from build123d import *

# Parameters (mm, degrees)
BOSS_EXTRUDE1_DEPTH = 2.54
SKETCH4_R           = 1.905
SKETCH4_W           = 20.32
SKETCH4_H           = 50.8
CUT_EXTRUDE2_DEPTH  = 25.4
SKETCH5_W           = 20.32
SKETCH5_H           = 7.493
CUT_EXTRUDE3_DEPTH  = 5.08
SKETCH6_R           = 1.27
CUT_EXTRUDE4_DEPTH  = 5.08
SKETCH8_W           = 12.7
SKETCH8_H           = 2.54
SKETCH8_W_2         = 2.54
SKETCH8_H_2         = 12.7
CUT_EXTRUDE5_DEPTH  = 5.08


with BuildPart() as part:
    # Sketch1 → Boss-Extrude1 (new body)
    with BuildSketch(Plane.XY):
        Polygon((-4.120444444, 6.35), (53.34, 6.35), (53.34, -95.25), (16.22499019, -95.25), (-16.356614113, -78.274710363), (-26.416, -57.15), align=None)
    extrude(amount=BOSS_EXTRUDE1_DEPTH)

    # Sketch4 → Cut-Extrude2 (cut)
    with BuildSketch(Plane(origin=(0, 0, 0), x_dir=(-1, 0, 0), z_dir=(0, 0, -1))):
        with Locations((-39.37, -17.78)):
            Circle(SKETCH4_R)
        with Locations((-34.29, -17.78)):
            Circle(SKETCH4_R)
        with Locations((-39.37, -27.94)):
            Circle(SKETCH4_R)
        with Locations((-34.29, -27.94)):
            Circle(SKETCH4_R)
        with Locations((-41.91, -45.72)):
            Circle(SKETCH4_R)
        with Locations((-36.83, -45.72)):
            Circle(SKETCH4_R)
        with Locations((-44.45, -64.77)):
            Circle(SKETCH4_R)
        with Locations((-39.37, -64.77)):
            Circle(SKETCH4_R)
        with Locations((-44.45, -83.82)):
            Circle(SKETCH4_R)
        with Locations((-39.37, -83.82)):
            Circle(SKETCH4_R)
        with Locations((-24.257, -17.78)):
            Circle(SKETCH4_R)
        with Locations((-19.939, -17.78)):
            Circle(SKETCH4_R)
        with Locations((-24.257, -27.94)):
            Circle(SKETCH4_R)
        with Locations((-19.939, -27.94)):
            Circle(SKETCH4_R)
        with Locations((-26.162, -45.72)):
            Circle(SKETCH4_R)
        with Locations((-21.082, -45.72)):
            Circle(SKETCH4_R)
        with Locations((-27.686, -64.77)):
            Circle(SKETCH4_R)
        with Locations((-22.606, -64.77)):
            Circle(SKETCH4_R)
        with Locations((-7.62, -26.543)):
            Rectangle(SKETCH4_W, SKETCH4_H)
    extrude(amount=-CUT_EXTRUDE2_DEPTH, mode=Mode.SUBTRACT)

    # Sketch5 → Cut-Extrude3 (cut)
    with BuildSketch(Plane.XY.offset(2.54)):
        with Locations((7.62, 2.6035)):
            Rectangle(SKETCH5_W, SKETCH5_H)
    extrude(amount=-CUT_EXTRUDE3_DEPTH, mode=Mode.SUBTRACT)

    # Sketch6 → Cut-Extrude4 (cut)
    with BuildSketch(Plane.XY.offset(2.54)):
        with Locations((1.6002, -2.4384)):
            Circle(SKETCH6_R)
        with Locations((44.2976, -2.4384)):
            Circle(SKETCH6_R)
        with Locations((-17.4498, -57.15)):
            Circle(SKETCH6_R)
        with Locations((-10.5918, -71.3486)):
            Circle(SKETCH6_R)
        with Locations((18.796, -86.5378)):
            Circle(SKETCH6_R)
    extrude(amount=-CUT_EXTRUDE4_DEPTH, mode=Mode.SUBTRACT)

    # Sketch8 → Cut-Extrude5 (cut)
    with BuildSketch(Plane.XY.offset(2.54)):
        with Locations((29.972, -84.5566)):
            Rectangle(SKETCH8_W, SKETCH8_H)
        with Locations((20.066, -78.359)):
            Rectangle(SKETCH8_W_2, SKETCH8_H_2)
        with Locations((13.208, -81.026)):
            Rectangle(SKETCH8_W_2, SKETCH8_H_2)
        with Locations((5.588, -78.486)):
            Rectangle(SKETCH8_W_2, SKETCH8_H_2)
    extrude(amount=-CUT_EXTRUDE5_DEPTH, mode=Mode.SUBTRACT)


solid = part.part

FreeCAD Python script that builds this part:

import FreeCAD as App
import Part
import Sketcher
Q = App.Units.Quantity


def add_polygon(sketch, points):
    """Adds a closed chain of lines whose ends are joined by coincident constraints."""
    first, n = sketch.GeometryCount, len(points)
    for a, b in zip(points, points[1:] + points[:1]):
        sketch.addGeometry(Part.LineSegment(App.Vector(*a, 0), App.Vector(*b, 0)), False)
    for i in range(n):
        sketch.addConstraint(Sketcher.Constraint("Coincident", first + i, 2, first + (i + 1) % n, 1))

doc = App.newDocument("Part")
body = doc.addObject("PartDesign::Body", "Body")

sketch1 = body.newObject("Sketcher::SketchObject", "Sketch")
sketch1.AttachmentSupport = (doc.getObject("XY_Plane"), [""])
sketch1.MapMode = "FlatFace"
add_polygon(sketch1, [(53.34, 6.35), (-4.120444, 6.35), (-26.416, -57.15), (-16.356614, -78.27471), (16.22499, -95.25), (53.34, -95.25)])
sketch1.addConstraint(Sketcher.Constraint("Horizontal", 0))
sketch1.addConstraint(Sketcher.Constraint("Horizontal", 4))
sketch1.addConstraint(Sketcher.Constraint("Vertical", 5))
sketch1.addConstraint(Sketcher.Constraint("DistanceY", 5, 1, 5, 2, Q("4 in")))
sketch1.addConstraint(Sketcher.Constraint("DistanceX", -1, 1, 4, 2, Q("2.1 in")))
sketch1.addConstraint(Sketcher.Constraint("DistanceY", 1, 2, 0, 2, Q("2.5 in")))
sketch1.addConstraint(Sketcher.Constraint("DistanceY", -1, 1, 0, 2, Q("0.25 in")))
sketch1.addConstraint(Sketcher.Constraint("DistanceX", 1, 2, -1, 1, Q("1.04 in")))
sketch1.addConstraint(Sketcher.Constraint("DistanceX", 4, 1, 4, 2, Q("37.11501 mm")))
sketch1.addConstraint(Sketcher.Constraint("DistanceX", 0, 2, 0, 1, Q("57.460444 mm")))
sketch1.addConstraint(Sketcher.Constraint("DistanceY", 2, 2, -1, 1, Q("78.27471 mm")))
sketch1.addConstraint(Sketcher.Constraint("DistanceX", 2, 2, 0, 2, Q("12.23617 mm")))
pad1 = body.newObject("PartDesign::Pad", "Pad")
pad1.Profile = sketch1
pad1.Length = Q("0.1 in")

sketch2 = body.newObject("Sketcher::SketchObject", "Sketch001")
sketch2.AttachmentSupport = (doc.getObject("XY_Plane"), [""])
sketch2.MapMode = "FlatFace"
sketch2.addGeometry(Part.Circle(App.Vector(39.37, -17.78, 0), App.Vector(0, 0, 1), 1.905), False)
sketch2.addGeometry(Part.Circle(App.Vector(34.29, -17.78, 0), App.Vector(0, 0, 1), 1.905), False)
sketch2.addGeometry(Part.Circle(App.Vector(39.37, -27.94, 0), App.Vector(0, 0, 1), 1.905), False)
sketch2.addGeometry(Part.Circle(App.Vector(34.29, -27.94, 0), App.Vector(0, 0, 1), 1.905), False)
sketch2.addGeometry(Part.Circle(App.Vector(41.91, -45.72, 0), App.Vector(0, 0, 1), 1.905), False)
sketch2.addGeometry(Part.Circle(App.Vector(36.83, -45.72, 0), App.Vector(0, 0, 1), 1.905), False)
sketch2.addGeometry(Part.Circle(App.Vector(44.45, -64.77, 0), App.Vector(0, 0, 1), 1.905), False)
sketch2.addGeometry(Part.Circle(App.Vector(39.37, -64.77, 0), App.Vector(0, 0, 1), 1.905), False)
sketch2.addGeometry(Part.Circle(App.Vector(44.45, -83.82, 0), App.Vector(0, 0, 1), 1.905), False)
sketch2.addGeometry(Part.Circle(App.Vector(39.37, -83.82, 0), App.Vector(0, 0, 1), 1.905), False)
sketch2.addGeometry(Part.Circle(App.Vector(24.257, -17.78, 0), App.Vector(0, 0, 1), 1.905), False)
sketch2.addGeometry(Part.Circle(App.Vector(19.939, -17.78, 0), App.Vector(0, 0, 1), 1.905), False)
sketch2.addGeometry(Part.Circle(App.Vector(24.257, -27.94, 0), App.Vector(0, 0, 1), 1.905), False)
sketch2.addGeometry(Part.Circle(App.Vector(19.939, -27.94, 0), App.Vector(0, 0, 1), 1.905), False)
sketch2.addGeometry(Part.Circle(App.Vector(26.162, -45.72, 0), App.Vector(0, 0, 1), 1.905), False)
sketch2.addGeometry(Part.Circle(App.Vector(21.082, -45.72, 0), App.Vector(0, 0, 1), 1.905), False)
sketch2.addGeometry(Part.Circle(App.Vector(27.686, -64.77, 0), App.Vector(0, 0, 1), 1.905), False)
sketch2.addGeometry(Part.Circle(App.Vector(22.606, -64.77, 0), App.Vector(0, 0, 1), 1.905), False)
add_polygon(sketch2, [(17.78, -1.143), (17.78, -51.943), (-2.54, -51.943), (-2.54, -1.143)])
sketch2.addConstraint(Sketcher.Constraint("Vertical", 18))
sketch2.addConstraint(Sketcher.Constraint("Horizontal", 19))
sketch2.addConstraint(Sketcher.Constraint("Vertical", 20))
sketch2.addConstraint(Sketcher.Constraint("Horizontal", 21))
sketch2.addConstraint(Sketcher.Constraint("Equal", 0, 1))
sketch2.addConstraint(Sketcher.Constraint("Equal", 1, 2))
sketch2.addConstraint(Sketcher.Constraint("Equal", 2, 3))
sketch2.addConstraint(Sketcher.Constraint("Equal", 3, 4))
sketch2.addConstraint(Sketcher.Constraint("Equal", 4, 5))
sketch2.addConstraint(Sketcher.Constraint("Equal", 5, 6))
sketch2.addConstraint(Sketcher.Constraint("Equal", 6, 7))
sketch2.addConstraint(Sketcher.Constraint("Equal", 7, 8))
sketch2.addConstraint(Sketcher.Constraint("Equal", 8, 9))
sketch2.addConstraint(Sketcher.Constraint("Equal", 9, 10))
sketch2.addConstraint(Sketcher.Constraint("Equal", 10, 11))
sketch2.addConstraint(Sketcher.Constraint("Equal", 11, 12))
sketch2.addConstraint(Sketcher.Constraint("Equal", 12, 13))
sketch2.addConstraint(Sketcher.Constraint("Equal", 13, 14))
sketch2.addConstraint(Sketcher.Constraint("Equal", 14, 15))
sketch2.addConstraint(Sketcher.Constraint("Equal", 15, 16))
sketch2.addConstraint(Sketcher.Constraint("Equal", 16, 17))
sketch2.addConstraint(Sketcher.Constraint("Horizontal", 0, 3, 1, 3))
sketch2.addConstraint(Sketcher.Constraint("Horizontal", 2, 3, 3, 3))
sketch2.addConstraint(Sketcher.Constraint("Horizontal", 4, 3, 5, 3))
sketch2.addConstraint(Sketcher.Constraint("Horizontal", 6, 3, 7, 3))
sketch2.addConstraint(Sketcher.Constraint("Horizontal", 8, 3, 9, 3))
sketch2.addConstraint(Sketcher.Constraint("Horizontal", 1, 3, 10, 3))
sketch2.addConstraint(Sketcher.Constraint("Horizontal", 10, 3, 11, 3))
sketch2.addConstraint(Sketcher.Constraint("Horizontal", 3, 3, 12, 3))
sketch2.addConstraint(Sketcher.Constraint("Horizontal", 12, 3, 13, 3))
sketch2.addConstraint(Sketcher.Constraint("Horizontal", 5, 3, 14, 3))
sketch2.addConstraint(Sketcher.Constraint("Horizontal", 14, 3, 15, 3))
sketch2.addConstraint(Sketcher.Constraint("Horizontal", 7, 3, 16, 3))
sketch2.addConstraint(Sketcher.Constraint("Horizontal", 16, 3, 17, 3))
sketch2.addConstraint(Sketcher.Constraint("Vertical", 0, 3, 2, 3))
sketch2.addConstraint(Sketcher.Constraint("Vertical", 1, 3, 3, 3))
sketch2.addConstraint(Sketcher.Constraint("Vertical", 2, 3, 7, 3))
sketch2.addConstraint(Sketcher.Constraint("Vertical", 6, 3, 8, 3))
sketch2.addConstraint(Sketcher.Constraint("Vertical", 7, 3, 9, 3))
sketch2.addConstraint(Sketcher.Constraint("Vertical", 10, 3, 12, 3))
sketch2.addConstraint(Sketcher.Constraint("Vertical", 11, 3, 13, 3))
sketch2.addConstraint(Sketcher.Constraint("Diameter", 0, Q("0.15 in")))
sketch2.addConstraint(Sketcher.Constraint("DistanceY", 18, 2, 18, 1, Q("2 in")))
sketch2.addConstraint(Sketcher.Constraint("DistanceX", 19, 2, 19, 1, Q("0.8 in")))
sketch2.addConstraint(Sketcher.Constraint("DistanceY", 0, 3, -1, 1, Q("0.7 in")))
sketch2.addConstraint(Sketcher.Constraint("DistanceY", 2, 3, -1, 1, Q("1.1 in")))
sketch2.addConstraint(Sketcher.Constraint("DistanceY", 4, 3, -1, 1, Q("1.8 in")))
sketch2.addConstraint(Sketcher.Constraint("DistanceY", 8, 3, -1, 1, Q("3.3 in")))
sketch2.addConstraint(Sketcher.Constraint("DistanceX", -1, 1, 18, 2, Q("0.7 in")))
sketch2.addConstraint(Sketcher.Constraint("DistanceX", 1, 3, 0, 3, Q("0.2 in")))
sketch2.addConstraint(Sketcher.Constraint("DistanceX", 2, 3, 4, 3, Q("0.1 in")))
sketch2.addConstraint(Sketcher.Constraint("DistanceX", 5, 3, 4, 3, Q("0.2 in")))
sketch2.addConstraint(Sketcher.Constraint("DistanceX", 4, 3, 6, 3, Q("0.1 in")))
sketch2.addConstraint(Sketcher.Constraint("DistanceX", 15, 3, 14, 3, Q("0.2 in")))
sketch2.addConstraint(Sketcher.Constraint("DistanceX", 17, 3, 16, 3, Q("0.2 in")))
sketch2.addConstraint(Sketcher.Constraint("DistanceX", -1, 1, 0, 3, Q("1.55 in")))
sketch2.addConstraint(Sketcher.Constraint("DistanceY", 6, 3, -1, 1, Q("2.55 in")))
sketch2.addConstraint(Sketcher.Constraint("DistanceX", -1, 1, 14, 3, Q("1.03 in")))
sketch2.addConstraint(Sketcher.Constraint("DistanceX", -1, 1, 16, 3, Q("1.09 in")))
sketch2.addConstraint(Sketcher.Constraint("DistanceX", 11, 3, 10, 3, Q("0.17 in")))
sketch2.addConstraint(Sketcher.Constraint("DistanceX", -1, 1, 10, 3, Q("0.955 in")))
sketch2.addConstraint(Sketcher.Constraint("DistanceY", 18, 2, -1, 1, Q("2.045 in")))
pocket1 = body.newObject("PartDesign::Pocket", "Pocket")
pocket1.Profile = sketch2
pocket1.Length = Q("1 in")
pocket1.Reversed = True

sketch3 = body.newObject("Sketcher::SketchObject", "Sketch002")
sketch3.AttachmentSupport = (doc.getObject("XY_Plane"), [""])
sketch3.MapMode = "FlatFace"
sketch3.AttachmentOffset = App.Placement(App.Vector(0, 0, 0.1 * 25.4), App.Rotation())
add_polygon(sketch3, [(-2.54, 6.35), (-2.54, -1.143), (17.78, -1.143), (17.78, 6.35)])
sketch3.addConstraint(Sketcher.Constraint("Vertical", 0))
sketch3.addConstraint(Sketcher.Constraint("Horizontal", 1))
sketch3.addConstraint(Sketcher.Constraint("Vertical", 2))
sketch3.addConstraint(Sketcher.Constraint("Horizontal", 3))
sketch3.addConstraint(Sketcher.Constraint("DistanceX", 1, 1, 1, 2, Q("0.8 in")))
sketch3.addConstraint(Sketcher.Constraint("DistanceX", 0, 2, -1, 1, Q("0.1 in")))
sketch3.addConstraint(Sketcher.Constraint("DistanceY", 0, 2, 0, 1, Q("0.295 in")))
sketch3.addConstraint(Sketcher.Constraint("DistanceY", -1, 1, 2, 2, Q("0.25 in")))
pocket2 = body.newObject("PartDesign::Pocket", "Pocket001")
pocket2.Profile = sketch3
pocket2.Length = Q("0.2 in")

sketch4 = body.newObject("Sketcher::SketchObject", "Sketch003")
sketch4.AttachmentSupport = (doc.getObject("XY_Plane"), [""])
sketch4.MapMode = "FlatFace"
sketch4.AttachmentOffset = App.Placement(App.Vector(0, 0, 0.1 * 25.4), App.Rotation())
sketch4.addGeometry(Part.Circle(App.Vector(1.6002, -2.4384, 0), App.Vector(0, 0, 1), 1.27), False)
sketch4.addGeometry(Part.Circle(App.Vector(44.2976, -2.4384, 0), App.Vector(0, 0, 1), 1.27), False)
sketch4.addGeometry(Part.Circle(App.Vector(-17.4498, -57.15, 0), App.Vector(0, 0, 1), 1.27), False)
sketch4.addGeometry(Part.Circle(App.Vector(-10.5918, -71.3486, 0), App.Vector(0, 0, 1), 1.27), False)
sketch4.addGeometry(Part.Circle(App.Vector(18.796, -86.5378, 0), App.Vector(0, 0, 1), 1.27), False)
sketch4.addConstraint(Sketcher.Constraint("Equal", 0, 1))
sketch4.addConstraint(Sketcher.Constraint("Equal", 1, 2))
sketch4.addConstraint(Sketcher.Constraint("Equal", 2, 3))
sketch4.addConstraint(Sketcher.Constraint("Equal", 3, 4))
sketch4.addConstraint(Sketcher.Constraint("Horizontal", 0, 3, 1, 3))
sketch4.addConstraint(Sketcher.Constraint("Diameter", 0, Q("0.1 in")))
sketch4.addConstraint(Sketcher.Constraint("DistanceY", 2, 3, -1, 1, Q("2.25 in")))
sketch4.addConstraint(Sketcher.Constraint("DistanceX", -1, 1, 4, 3, Q("0.74 in")))
sketch4.addConstraint(Sketcher.Constraint("DistanceX", 2, 3, 0, 3, Q("0.75 in")))
sketch4.addConstraint(Sketcher.Constraint("DistanceX", 2, 3, 3, 3, Q("0.27 in")))
sketch4.addConstraint(Sketcher.Constraint("DistanceX", -1, 1, 0, 3, Q("0.063 in")))
sketch4.addConstraint(Sketcher.Constraint("DistanceY", 0, 3, -1, 1, Q("0.096 in")))
sketch4.addConstraint(Sketcher.Constraint("DistanceX", -1, 1, 1, 3, Q("1.744 in")))
sketch4.addConstraint(Sketcher.Constraint("DistanceY", 3, 3, -1, 1, Q("2.809 in")))
sketch4.addConstraint(Sketcher.Constraint("DistanceY", 4, 3, -1, 1, Q("3.407 in")))
pocket3 = body.newObject("PartDesign::Pocket", "Pocket002")
pocket3.Profile = sketch4
pocket3.Length = Q("0.2 in")

sketch5 = body.newObject("Sketcher::SketchObject", "Sketch004")
sketch5.AttachmentSupport = (doc.getObject("XY_Plane"), [""])
sketch5.MapMode = "FlatFace"
sketch5.AttachmentOffset = App.Placement(App.Vector(0, 0, 0.1 * 25.4), App.Rotation())
add_polygon(sketch5, [(23.622, -83.2866), (23.622, -85.8266), (36.322, -85.8266), (36.322, -83.2866)])
add_polygon(sketch5, [(18.796, -72.009), (18.796, -84.709), (21.336, -84.709), (21.336, -72.009)])
add_polygon(sketch5, [(11.938, -74.676), (11.938, -87.376), (14.478, -87.376), (14.478, -74.676)])
add_polygon(sketch5, [(4.318, -72.136), (4.318, -84.836), (6.858, -84.836), (6.858, -72.136)])
sketch5.addConstraint(Sketcher.Constraint("Vertical", 0))
sketch5.addConstraint(Sketcher.Constraint("Horizontal", 1))
sketch5.addConstraint(Sketcher.Constraint("Vertical", 2))
sketch5.addConstraint(Sketcher.Constraint("Horizontal", 3))
sketch5.addConstraint(Sketcher.Constraint("Vertical", 4))
sketch5.addConstraint(Sketcher.Constraint("Horizontal", 5))
sketch5.addConstraint(Sketcher.Constraint("Vertical", 6))
sketch5.addConstraint(Sketcher.Constraint("Horizontal", 7))
sketch5.addConstraint(Sketcher.Constraint("Vertical", 8))
sketch5.addConstraint(Sketcher.Constraint("Horizontal", 9))
sketch5.addConstraint(Sketcher.Constraint("Vertical", 10))
sketch5.addConstraint(Sketcher.Constraint("Horizontal", 11))
sketch5.addConstraint(Sketcher.Constraint("Vertical", 12))
sketch5.addConstraint(Sketcher.Constraint("Horizontal", 13))
sketch5.addConstraint(Sketcher.Constraint("Vertical", 14))
sketch5.addConstraint(Sketcher.Constraint("Horizontal", 15))
sketch5.addConstraint(Sketcher.Constraint("Equal", 7, 9))
sketch5.addConstraint(Sketcher.Constraint("Equal", 11, 13))
sketch5.addConstraint(Sketcher.Constraint("Equal", 15, 0))
sketch5.addConstraint(Sketcher.Constraint("Equal", 3, 4))
sketch5.addConstraint(Sketcher.Constraint("Equal", 6, 8))
sketch5.addConstraint(Sketcher.Constraint("Equal", 10, 12))
sketch5.addConstraint(Sketcher.Constraint("DistanceX", 1, 1, 1, 2, Q("0.5 in")))
sketch5.addConstraint(Sketcher.Constraint("DistanceX", 5, 1, 5, 2, Q("0.1 in")))
sketch5.addConstraint(Sketcher.Constraint("DistanceX", 12, 2, 8, 2, Q("0.3 in")))
sketch5.addConstraint(Sketcher.Constraint("DistanceY", 8, 2, 12, 2, Q("0.1 in")))
sketch5.addConstraint(Sketcher.Constraint("DistanceX", -1, 1, 0, 2, Q("0.93 in")))
sketch5.addConstraint(Sketcher.Constraint("DistanceX", -1, 1, 4, 2, Q("0.74 in")))
sketch5.addConstraint(Sketcher.Constraint("DistanceX", -1, 1, 8, 2, Q("0.47 in")))
sketch5.addConstraint(Sketcher.Constraint("DistanceY", 8, 2, -1, 1, Q("3.44 in")))
sketch5.addConstraint(Sketcher.Constraint("DistanceY", 0, 2, -1, 1, Q("3.379 in")))
sketch5.addConstraint(Sketcher.Constraint("DistanceY", 4, 2, -1, 1, Q("3.335 in")))
pocket4 = body.newObject("PartDesign::Pocket", "Pocket003")
pocket4.Profile = sketch5
pocket4.Length = Q("0.2 in")

doc.recompute()
